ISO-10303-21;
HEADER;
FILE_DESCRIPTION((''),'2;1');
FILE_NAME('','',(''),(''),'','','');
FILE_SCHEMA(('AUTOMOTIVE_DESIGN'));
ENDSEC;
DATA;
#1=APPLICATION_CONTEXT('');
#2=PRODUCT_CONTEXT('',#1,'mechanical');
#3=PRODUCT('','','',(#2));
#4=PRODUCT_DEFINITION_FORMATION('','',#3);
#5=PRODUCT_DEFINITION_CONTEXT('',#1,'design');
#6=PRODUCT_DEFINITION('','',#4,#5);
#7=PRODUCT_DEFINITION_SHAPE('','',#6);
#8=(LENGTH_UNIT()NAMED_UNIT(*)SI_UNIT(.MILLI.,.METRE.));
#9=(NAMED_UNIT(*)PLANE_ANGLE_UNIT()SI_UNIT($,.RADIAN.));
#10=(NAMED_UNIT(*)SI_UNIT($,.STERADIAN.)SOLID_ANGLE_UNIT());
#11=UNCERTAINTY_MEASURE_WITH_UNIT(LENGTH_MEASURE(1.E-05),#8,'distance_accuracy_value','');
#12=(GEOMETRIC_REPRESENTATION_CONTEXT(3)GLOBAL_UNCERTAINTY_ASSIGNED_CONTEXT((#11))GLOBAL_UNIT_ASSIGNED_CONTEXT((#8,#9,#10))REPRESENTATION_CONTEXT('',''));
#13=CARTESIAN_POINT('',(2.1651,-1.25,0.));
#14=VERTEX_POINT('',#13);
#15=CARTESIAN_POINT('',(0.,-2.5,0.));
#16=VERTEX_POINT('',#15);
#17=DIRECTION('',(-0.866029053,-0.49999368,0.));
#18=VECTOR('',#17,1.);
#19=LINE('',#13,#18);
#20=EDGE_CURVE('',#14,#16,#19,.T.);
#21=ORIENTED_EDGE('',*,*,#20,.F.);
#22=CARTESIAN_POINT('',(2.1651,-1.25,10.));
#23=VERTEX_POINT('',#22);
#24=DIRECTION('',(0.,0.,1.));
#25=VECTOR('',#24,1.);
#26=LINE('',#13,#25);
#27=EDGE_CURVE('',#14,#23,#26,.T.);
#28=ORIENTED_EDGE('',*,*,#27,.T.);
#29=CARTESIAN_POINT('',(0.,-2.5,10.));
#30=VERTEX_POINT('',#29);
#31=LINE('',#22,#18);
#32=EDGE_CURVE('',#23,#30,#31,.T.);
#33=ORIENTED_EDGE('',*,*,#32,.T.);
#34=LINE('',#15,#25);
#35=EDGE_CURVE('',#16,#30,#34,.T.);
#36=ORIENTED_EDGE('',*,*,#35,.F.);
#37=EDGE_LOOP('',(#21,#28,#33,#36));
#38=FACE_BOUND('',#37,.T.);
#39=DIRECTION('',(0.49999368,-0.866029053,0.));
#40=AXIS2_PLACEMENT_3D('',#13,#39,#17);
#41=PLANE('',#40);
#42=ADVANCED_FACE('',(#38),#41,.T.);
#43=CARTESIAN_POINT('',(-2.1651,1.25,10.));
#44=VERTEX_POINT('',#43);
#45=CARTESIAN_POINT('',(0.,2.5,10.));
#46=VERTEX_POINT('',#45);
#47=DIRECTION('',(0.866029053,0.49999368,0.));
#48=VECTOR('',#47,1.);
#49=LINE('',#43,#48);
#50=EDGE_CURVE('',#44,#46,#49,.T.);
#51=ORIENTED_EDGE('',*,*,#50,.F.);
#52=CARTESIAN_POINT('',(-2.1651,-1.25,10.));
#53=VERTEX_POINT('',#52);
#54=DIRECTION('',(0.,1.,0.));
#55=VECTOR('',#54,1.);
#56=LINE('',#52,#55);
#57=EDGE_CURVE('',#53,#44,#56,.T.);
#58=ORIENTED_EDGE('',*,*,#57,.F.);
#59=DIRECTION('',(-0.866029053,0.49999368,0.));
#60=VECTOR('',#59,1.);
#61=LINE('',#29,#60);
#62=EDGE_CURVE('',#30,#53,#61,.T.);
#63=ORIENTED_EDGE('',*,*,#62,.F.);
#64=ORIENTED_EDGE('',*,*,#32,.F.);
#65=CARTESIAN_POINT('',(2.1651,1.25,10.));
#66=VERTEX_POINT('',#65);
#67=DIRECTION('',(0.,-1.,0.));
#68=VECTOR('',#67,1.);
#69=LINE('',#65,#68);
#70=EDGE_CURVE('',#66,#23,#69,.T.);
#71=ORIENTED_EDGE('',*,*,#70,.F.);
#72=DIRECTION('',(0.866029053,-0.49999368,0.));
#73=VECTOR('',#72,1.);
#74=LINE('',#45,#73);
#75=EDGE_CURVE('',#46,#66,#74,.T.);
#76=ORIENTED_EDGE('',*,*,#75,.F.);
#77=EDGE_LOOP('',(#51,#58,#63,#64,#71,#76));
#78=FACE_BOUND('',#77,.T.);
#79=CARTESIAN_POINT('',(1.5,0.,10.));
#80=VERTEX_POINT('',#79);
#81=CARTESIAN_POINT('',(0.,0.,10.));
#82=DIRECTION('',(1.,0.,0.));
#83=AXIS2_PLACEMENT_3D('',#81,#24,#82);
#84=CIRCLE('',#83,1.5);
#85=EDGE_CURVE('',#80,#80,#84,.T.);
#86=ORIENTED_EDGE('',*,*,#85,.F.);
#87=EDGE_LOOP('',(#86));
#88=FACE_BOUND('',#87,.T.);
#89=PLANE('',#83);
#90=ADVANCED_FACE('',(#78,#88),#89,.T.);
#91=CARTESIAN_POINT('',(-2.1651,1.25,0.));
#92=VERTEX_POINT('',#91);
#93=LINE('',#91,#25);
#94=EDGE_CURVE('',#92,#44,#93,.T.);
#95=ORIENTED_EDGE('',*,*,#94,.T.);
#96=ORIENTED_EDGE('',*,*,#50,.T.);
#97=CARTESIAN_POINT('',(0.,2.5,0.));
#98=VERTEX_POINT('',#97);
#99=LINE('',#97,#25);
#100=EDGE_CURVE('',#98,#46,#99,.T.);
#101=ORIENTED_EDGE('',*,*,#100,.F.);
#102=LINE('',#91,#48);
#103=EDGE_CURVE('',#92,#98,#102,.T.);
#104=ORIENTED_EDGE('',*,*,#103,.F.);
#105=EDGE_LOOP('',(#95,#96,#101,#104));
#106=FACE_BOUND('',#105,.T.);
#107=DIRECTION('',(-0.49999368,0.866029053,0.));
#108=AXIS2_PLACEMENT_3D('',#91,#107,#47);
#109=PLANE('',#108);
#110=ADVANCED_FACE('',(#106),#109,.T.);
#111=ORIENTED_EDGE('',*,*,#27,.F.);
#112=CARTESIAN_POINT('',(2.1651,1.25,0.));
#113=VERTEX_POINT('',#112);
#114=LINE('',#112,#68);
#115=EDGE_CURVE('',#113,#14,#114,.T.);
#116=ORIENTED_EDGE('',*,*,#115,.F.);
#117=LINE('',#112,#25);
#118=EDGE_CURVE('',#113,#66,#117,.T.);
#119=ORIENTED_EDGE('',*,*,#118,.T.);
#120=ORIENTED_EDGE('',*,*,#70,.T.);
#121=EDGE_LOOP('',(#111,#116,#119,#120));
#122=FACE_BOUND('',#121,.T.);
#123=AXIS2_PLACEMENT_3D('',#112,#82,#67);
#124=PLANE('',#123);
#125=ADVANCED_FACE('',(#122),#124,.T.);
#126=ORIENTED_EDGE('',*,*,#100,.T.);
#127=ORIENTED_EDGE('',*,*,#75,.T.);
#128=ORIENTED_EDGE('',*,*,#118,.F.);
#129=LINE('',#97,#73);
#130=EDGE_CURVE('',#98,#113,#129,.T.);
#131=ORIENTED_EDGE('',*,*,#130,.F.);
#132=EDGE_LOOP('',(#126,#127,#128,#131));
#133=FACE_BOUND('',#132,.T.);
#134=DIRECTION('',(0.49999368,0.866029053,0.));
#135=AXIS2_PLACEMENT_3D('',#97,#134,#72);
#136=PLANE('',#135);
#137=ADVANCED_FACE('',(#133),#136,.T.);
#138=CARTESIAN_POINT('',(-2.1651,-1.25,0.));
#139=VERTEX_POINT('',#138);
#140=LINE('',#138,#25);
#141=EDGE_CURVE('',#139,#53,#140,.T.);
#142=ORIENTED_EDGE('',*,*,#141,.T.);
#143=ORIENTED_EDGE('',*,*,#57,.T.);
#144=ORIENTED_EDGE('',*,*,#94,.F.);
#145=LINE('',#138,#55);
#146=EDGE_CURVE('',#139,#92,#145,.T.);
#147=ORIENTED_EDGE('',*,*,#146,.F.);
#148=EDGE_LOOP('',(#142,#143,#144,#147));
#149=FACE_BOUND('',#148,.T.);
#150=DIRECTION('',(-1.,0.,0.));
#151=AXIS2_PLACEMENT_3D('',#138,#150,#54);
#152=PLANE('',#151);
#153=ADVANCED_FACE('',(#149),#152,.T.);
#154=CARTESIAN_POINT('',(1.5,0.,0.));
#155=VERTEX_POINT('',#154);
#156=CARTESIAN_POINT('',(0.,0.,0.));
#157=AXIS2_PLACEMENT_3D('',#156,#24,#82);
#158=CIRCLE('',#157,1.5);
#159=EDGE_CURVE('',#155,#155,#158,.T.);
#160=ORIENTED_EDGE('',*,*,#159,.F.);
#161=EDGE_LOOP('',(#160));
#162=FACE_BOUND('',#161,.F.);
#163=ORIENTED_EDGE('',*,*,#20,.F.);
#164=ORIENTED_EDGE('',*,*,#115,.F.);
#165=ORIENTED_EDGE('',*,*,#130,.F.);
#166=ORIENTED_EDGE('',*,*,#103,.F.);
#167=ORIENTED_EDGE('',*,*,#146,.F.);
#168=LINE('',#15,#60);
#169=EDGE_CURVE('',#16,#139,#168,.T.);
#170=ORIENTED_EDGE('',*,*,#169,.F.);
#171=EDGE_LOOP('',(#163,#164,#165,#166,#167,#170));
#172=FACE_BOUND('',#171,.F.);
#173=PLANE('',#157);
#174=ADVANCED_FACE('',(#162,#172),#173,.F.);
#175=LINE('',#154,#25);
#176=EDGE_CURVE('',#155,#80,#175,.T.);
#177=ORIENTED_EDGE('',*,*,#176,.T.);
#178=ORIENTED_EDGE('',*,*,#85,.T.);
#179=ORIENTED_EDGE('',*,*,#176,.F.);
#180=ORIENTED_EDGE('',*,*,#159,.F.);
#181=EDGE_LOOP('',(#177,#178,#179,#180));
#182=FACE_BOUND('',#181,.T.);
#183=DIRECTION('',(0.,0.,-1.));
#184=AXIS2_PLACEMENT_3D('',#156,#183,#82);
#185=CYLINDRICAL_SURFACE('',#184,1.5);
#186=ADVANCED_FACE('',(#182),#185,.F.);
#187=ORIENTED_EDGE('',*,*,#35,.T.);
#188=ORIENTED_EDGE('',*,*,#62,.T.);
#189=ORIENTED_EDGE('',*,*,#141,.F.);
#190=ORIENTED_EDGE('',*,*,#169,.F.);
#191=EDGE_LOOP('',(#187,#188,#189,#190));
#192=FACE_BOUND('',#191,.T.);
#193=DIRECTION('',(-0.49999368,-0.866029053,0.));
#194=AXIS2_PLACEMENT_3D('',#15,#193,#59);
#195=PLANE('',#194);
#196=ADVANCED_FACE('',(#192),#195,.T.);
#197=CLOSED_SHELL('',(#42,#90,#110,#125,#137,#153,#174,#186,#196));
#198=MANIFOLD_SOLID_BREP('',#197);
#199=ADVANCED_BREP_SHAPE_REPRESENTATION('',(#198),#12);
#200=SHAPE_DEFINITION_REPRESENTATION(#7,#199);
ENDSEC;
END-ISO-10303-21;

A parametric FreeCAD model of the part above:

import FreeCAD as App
import Part
import Sketcher
from FreeCAD import Vector
Q = App.Units.Quantity

doc = App.newDocument("Part")
body = doc.addObject("PartDesign::Body", "Body")

# Sketch on XY plane
sketch1 = body.newObject("Sketcher::SketchObject", "Sketch")
sketch1.AttachmentSupport = (doc.getObject("XY_Plane"), [""])
sketch1.MapMode = "FlatFace"
sketch1.addGeometry([
    Part.LineSegment(Vector(0, 2.5, 0), Vector(-2.1651, 1.25, 0)),  # 0
    Part.LineSegment(Vector(-2.1651, 1.25, 0), Vector(-2.1651, -1.25, 0)),  # 1
    Part.LineSegment(Vector(-2.1651, -1.25, 0), Vector(0, -2.5, 0)),  # 2
    Part.LineSegment(Vector(0, -2.5, 0), Vector(2.1651, -1.25, 0)),  # 3
    Part.LineSegment(Vector(2.1651, -1.25, 0), Vector(2.1651, 1.25, 0)),  # 4
    Part.LineSegment(Vector(2.1651, 1.25, 0), Vector(0, 2.5, 0)),  # 5
    Part.Circle(Vector(0, 0, 0), Vector(0, 0, 1), 1.5),  # 6
], False)
sketch1.addConstraint([
    Sketcher.Constraint("Coincident", 0, 2, 1, 1),
    Sketcher.Constraint("Coincident", 1, 2, 2, 1),
    Sketcher.Constraint("Coincident", 2, 2, 3, 1),
    Sketcher.Constraint("Coincident", 3, 2, 4, 1),
    Sketcher.Constraint("Coincident", 4, 2, 5, 1),
    Sketcher.Constraint("Coincident", 5, 2, 0, 1),
    Sketcher.Constraint("Vertical", 1),
    Sketcher.Constraint("Vertical", 4),
    Sketcher.Constraint("Coincident", 6, 3, -1, 1),
    Sketcher.Constraint("Symmetric", 0, 2, 3, 2, -1, 1),
    Sketcher.Constraint("Symmetric", 2, 2, 5, 2, -1, 1),
    Sketcher.Constraint("PointOnObject", 2, 2, -2),
    Sketcher.Constraint("Parallel", 2, 5),
    Sketcher.Constraint("Horizontal", 1, 2, 3, 2),
    Sketcher.Constraint("Diameter", 6, Q("3 mm")),
    Sketcher.Constraint("Angle", 0, Q("-150.0004 deg")),
    Sketcher.Constraint("DistanceY", 1, 2, 1, 1, Q("2.5 mm")),
    Sketcher.Constraint("Distance", 0, Q("2.5 mm")),
])
pad1 = body.newObject("PartDesign::Pad", "Pad")
pad1.Profile = sketch1
pad1.Length = 10

doc.recompute()
